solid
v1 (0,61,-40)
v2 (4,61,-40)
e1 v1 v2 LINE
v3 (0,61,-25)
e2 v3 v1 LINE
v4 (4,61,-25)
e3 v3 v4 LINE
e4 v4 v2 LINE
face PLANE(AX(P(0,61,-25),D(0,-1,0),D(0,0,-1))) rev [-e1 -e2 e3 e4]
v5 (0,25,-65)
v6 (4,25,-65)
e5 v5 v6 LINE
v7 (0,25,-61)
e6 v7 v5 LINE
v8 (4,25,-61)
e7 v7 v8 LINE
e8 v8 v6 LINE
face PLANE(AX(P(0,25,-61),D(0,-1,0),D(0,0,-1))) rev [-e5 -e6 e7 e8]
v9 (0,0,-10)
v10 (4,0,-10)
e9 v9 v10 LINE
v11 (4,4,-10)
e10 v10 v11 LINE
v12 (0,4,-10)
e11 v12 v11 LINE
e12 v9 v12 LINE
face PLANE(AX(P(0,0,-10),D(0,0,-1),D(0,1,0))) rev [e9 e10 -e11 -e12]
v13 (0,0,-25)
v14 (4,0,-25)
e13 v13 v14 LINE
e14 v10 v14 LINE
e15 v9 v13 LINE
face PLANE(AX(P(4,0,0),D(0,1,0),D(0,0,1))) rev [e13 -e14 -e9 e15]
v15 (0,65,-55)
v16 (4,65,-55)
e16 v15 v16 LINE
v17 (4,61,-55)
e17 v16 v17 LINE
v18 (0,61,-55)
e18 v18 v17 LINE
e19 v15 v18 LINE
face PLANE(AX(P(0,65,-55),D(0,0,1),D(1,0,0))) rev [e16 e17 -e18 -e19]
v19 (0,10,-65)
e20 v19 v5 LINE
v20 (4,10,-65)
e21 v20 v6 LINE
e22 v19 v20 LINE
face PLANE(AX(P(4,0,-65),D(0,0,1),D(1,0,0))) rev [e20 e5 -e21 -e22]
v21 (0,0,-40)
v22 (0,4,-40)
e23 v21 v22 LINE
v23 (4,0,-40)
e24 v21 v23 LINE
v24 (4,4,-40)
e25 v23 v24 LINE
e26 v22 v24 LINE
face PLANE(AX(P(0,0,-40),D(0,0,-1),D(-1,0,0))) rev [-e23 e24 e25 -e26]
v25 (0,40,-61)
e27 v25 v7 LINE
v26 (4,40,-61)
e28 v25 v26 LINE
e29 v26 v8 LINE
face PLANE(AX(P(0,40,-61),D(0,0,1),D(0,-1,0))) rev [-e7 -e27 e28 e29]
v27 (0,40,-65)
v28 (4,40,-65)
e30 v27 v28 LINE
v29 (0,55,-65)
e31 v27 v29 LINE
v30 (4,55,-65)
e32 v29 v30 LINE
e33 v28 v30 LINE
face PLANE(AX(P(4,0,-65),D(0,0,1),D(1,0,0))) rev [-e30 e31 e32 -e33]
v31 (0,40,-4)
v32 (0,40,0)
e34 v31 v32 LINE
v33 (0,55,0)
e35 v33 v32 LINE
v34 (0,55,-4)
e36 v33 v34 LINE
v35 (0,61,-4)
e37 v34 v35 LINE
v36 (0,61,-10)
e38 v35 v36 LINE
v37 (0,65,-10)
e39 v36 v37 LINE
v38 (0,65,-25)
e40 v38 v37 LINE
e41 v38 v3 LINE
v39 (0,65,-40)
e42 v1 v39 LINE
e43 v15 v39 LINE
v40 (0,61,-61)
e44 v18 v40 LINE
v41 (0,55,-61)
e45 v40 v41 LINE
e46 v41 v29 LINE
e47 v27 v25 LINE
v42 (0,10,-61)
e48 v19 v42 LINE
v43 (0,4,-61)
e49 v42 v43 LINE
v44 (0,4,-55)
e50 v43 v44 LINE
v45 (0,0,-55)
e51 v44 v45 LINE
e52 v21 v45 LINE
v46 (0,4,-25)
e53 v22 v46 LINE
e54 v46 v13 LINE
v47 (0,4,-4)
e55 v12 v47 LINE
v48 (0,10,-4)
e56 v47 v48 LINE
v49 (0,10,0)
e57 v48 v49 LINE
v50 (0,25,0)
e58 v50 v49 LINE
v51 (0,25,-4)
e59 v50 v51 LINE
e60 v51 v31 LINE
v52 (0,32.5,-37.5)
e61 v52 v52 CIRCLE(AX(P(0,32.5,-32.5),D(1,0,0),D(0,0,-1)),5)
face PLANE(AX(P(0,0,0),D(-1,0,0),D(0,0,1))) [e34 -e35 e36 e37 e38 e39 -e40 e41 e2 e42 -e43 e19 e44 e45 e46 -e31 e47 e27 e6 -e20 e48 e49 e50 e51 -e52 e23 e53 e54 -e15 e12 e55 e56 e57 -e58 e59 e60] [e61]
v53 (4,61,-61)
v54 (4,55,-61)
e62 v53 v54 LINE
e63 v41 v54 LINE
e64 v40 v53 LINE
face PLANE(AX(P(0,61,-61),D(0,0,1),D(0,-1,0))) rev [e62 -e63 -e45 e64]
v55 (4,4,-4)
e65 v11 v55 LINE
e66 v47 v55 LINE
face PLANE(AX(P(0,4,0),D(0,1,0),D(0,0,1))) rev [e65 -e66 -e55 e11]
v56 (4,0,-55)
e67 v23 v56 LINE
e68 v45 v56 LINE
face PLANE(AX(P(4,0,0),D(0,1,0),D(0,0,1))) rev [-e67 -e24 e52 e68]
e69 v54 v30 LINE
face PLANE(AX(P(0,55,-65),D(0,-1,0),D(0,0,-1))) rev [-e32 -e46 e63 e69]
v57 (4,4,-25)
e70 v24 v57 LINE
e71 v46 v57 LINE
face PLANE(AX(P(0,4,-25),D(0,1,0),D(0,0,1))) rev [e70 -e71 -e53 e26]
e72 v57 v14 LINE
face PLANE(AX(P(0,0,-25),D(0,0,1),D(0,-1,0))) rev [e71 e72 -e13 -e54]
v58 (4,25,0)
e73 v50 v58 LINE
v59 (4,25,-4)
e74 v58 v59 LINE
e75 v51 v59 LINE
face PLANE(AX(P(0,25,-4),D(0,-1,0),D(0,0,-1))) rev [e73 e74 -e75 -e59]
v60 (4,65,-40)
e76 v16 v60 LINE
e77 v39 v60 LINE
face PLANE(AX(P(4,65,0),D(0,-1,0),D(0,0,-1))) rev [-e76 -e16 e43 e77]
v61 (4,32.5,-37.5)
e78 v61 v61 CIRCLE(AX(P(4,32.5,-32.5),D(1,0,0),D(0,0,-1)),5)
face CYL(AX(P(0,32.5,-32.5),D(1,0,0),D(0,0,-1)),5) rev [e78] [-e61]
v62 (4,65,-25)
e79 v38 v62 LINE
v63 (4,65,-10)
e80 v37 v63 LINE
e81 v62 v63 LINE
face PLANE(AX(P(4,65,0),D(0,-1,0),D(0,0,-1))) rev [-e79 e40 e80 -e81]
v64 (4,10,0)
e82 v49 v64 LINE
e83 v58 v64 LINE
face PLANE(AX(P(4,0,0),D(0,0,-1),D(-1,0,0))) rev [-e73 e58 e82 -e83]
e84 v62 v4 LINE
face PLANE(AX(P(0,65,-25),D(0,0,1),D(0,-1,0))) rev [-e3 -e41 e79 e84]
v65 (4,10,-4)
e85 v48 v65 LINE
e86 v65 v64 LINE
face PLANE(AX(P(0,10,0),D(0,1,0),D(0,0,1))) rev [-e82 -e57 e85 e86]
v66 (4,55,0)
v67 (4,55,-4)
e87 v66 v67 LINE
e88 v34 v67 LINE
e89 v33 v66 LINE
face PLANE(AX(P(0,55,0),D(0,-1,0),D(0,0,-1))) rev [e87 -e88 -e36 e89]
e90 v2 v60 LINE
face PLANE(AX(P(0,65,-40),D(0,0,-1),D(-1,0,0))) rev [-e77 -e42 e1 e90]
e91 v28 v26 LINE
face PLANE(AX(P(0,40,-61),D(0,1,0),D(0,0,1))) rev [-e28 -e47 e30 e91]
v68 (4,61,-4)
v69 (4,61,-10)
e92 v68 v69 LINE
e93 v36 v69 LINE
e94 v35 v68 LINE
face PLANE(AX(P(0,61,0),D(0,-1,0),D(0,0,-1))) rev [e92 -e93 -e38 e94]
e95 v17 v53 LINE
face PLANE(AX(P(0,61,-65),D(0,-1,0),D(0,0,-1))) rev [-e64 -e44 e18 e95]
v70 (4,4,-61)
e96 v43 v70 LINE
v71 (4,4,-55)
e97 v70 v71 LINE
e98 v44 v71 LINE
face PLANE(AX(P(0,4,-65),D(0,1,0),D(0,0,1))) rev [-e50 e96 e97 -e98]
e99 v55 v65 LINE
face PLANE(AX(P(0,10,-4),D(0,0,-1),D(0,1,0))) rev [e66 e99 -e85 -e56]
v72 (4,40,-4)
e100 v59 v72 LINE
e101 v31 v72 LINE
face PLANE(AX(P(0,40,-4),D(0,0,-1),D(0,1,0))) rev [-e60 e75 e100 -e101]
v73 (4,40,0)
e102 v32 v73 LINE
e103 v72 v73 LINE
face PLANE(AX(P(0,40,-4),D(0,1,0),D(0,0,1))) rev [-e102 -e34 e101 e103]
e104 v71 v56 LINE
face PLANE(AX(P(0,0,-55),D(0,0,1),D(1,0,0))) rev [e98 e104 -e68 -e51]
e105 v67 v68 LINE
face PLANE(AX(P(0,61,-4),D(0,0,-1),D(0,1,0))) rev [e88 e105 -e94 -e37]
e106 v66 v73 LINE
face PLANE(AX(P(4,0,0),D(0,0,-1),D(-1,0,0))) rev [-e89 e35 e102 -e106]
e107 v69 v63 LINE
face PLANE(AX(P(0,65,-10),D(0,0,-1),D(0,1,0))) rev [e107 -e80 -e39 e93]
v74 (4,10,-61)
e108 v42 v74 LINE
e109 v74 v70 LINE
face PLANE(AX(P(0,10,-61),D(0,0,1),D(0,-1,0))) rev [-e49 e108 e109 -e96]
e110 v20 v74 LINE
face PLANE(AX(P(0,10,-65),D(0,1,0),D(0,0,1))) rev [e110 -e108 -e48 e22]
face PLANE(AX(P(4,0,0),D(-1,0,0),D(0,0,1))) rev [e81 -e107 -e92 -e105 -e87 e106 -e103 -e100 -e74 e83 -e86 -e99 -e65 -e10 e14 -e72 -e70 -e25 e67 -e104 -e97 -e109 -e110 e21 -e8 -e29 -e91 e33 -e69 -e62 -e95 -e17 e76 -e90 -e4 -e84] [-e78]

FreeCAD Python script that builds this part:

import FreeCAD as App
import Part
import Sketcher
Q = App.Units.Quantity


def add_polygon(sketch, points):
    """Adds a closed chain of lines whose ends are joined by coincident constraints."""
    first, n = sketch.GeometryCount, len(points)
    for a, b in zip(points, points[1:] + points[:1]):
        sketch.addGeometry(Part.LineSegment(App.Vector(*a, 0), App.Vector(*b, 0)), False)
    for i in range(n):
        sketch.addConstraint(Sketcher.Constraint("Coincident", first + i, 2, first + (i + 1) % n, 1))

doc = App.newDocument("Part")
body = doc.addObject("PartDesign::Body", "Body")

# Sketch on YZ plane
sketch1 = body.newObject("Sketcher::SketchObject", "Sketch")
sketch1.AttachmentSupport = (doc.getObject("YZ_Plane"), [""])
sketch1.MapMode = "FlatFace"
add_polygon(sketch1, [(65, 0), (0, 0), (0, -65), (65, -65)])  # lines 0-3
sketch1.addConstraint(Sketcher.Constraint("Horizontal", 0))
sketch1.addConstraint(Sketcher.Constraint("Vertical", 1))
sketch1.addConstraint(Sketcher.Constraint("Horizontal", 2))
sketch1.addConstraint(Sketcher.Constraint("Vertical", 3))
sketch1.addConstraint(Sketcher.Constraint("Coincident", 0, 2, -1, 1))
sketch1.addConstraint(Sketcher.Constraint("Equal", 2, 1))
sketch1.addConstraint(Sketcher.Constraint("DistanceX", 0, 2, 0, 1, Q("65 mm")))
pad1 = body.newObject("PartDesign::Pad", "Pad")
pad1.Profile = sketch1
pad1.Length = 4

# Sketch on YZ plane
sketch2 = body.newObject("Sketcher::SketchObject", "Sketch001")
sketch2.AttachmentSupport = (doc.getObject("YZ_Plane"), [""])
sketch2.MapMode = "FlatFace"
sketch2.AttachmentOffset = App.Placement(App.Vector(0, 0, 4), App.Rotation())
sketch2.addGeometry(Part.Circle(App.Vector(32, -32, 0), App.Vector(0, 0, 1), 5), False)
sketch2.addConstraint(Sketcher.Constraint("Diameter", 0, Q("10 mm")))
sketch2.addConstraint(Sketcher.Constraint("DistanceX", -1, 1, 0, 3, Q("32.5 mm")))
sketch2.addConstraint(Sketcher.Constraint("DistanceY", 0, 3, -1, 1, Q("32.5 mm")))
pocket1 = body.newObject("PartDesign::Pocket", "Pocket")
pocket1.Profile = sketch2
pocket1.Length = 4

# Sketch on YZ plane
sketch3 = body.newObject("Sketcher::SketchObject", "Sketch002")
sketch3.AttachmentSupport = (doc.getObject("YZ_Plane"), [""])
sketch3.MapMode = "FlatFace"
sketch3.AttachmentOffset = App.Placement(App.Vector(0, 0, 4), App.Rotation())
add_polygon(sketch3, [(65, 0), (61, 0), (61, -10), (65, -10)])  # lines 0-3
add_polygon(sketch3, [(65, -25), (61, -25), (61, -40), (65, -40)])  # lines 4-7
add_polygon(sketch3, [(65, -55), (61, -55), (61, -65), (65, -65)])  # lines 8-11
add_polygon(sketch3, [(4, -55), (0, -55), (0, -65), (4, -65)])  # lines 12-15
add_polygon(sketch3, [(4, -25), (0, -25), (0, -40), (4, -40)])  # lines 16-19
add_polygon(sketch3, [(4, 0), (0, 0), (0, -10), (4, -10)])  # lines 20-23
sketch3.addConstraint(Sketcher.Constraint("Horizontal", 0))
sketch3.addConstraint(Sketcher.Constraint("Vertical", 1))
sketch3.addConstraint(Sketcher.Constraint("Horizontal", 2))
sketch3.addConstraint(Sketcher.Constraint("Vertical", 3))
sketch3.addConstraint(Sketcher.Constraint("Horizontal", 4))
sketch3.addConstraint(Sketcher.Constraint("Vertical", 5))
sketch3.addConstraint(Sketcher.Constraint("Horizontal", 6))
sketch3.addConstraint(Sketcher.Constraint("Vertical", 7))
sketch3.addConstraint(Sketcher.Constraint("Horizontal", 8))
sketch3.addConstraint(Sketcher.Constraint("Vertical", 9))
sketch3.addConstraint(Sketcher.Constraint("Horizontal", 10))
sketch3.addConstraint(Sketcher.Constraint("Vertical", 11))
sketch3.addConstraint(Sketcher.Constraint("Horizontal", 12))
sketch3.addConstraint(Sketcher.Constraint("Vertical", 13))
sketch3.addConstraint(Sketcher.Constraint("Horizontal", 14))
sketch3.addConstraint(Sketcher.Constraint("Vertical", 15))
sketch3.addConstraint(Sketcher.Constraint("Horizontal", 16))
sketch3.addConstraint(Sketcher.Constraint("Vertical", 17))
sketch3.addConstraint(Sketcher.Constraint("Horizontal", 18))
sketch3.addConstraint(Sketcher.Constraint("Vertical", 19))
sketch3.addConstraint(Sketcher.Constraint("Horizontal", 20))
sketch3.addConstraint(Sketcher.Constraint("Vertical", 21))
sketch3.addConstraint(Sketcher.Constraint("Horizontal", 22))
sketch3.addConstraint(Sketcher.Constraint("Vertical", 23))
sketch3.addConstraint(Sketcher.Constraint("Coincident", 20, 2, -1, 1))
sketch3.addConstraint(Sketcher.Constraint("PointOnObject", 0, 2, -1))
sketch3.addConstraint(Sketcher.Constraint("PointOnObject", 12, 2, -2))
sketch3.addConstraint(Sketcher.Constraint("PointOnObject", 16, 2, -2))
sketch3.addConstraint(Sketcher.Constraint("Horizontal", 11, 2, 12, 2))
sketch3.addConstraint(Sketcher.Constraint("Horizontal", 10, 2, 13, 2))
sketch3.addConstraint(Sketcher.Constraint("Horizontal", 7, 2, 16, 2))
sketch3.addConstraint(Sketcher.Constraint("Horizontal", 6, 2, 17, 2))
sketch3.addConstraint(Sketcher.Constraint("Horizontal", 2, 2, 21, 2))
sketch3.addConstraint(Sketcher.Constraint("Vertical", 1, 2, 4, 2))
sketch3.addConstraint(Sketcher.Constraint("Vertical", 3, 2, 6, 2))
sketch3.addConstraint(Sketcher.Constraint("Vertical", 5, 2, 8, 2))
sketch3.addConstraint(Sketcher.Constraint("Vertical", 7, 2, 10, 2))
sketch3.addConstraint(Sketcher.Constraint("Vertical", 15, 2, 18, 2))
sketch3.addConstraint(Sketcher.Constraint("Vertical", 19, 2, 22, 2))
sketch3.addConstraint(Sketcher.Constraint("Equal", 10, 12))
sketch3.addConstraint(Sketcher.Constraint("Equal", 3, 9))
sketch3.addConstraint(Sketcher.Constraint("DistanceX", 0, 2, 0, 1, Q("4 mm")))
sketch3.addConstraint(Sketcher.Constraint("DistanceY", 1, 2, 1, 1, Q("10 mm")))
sketch3.addConstraint(Sketcher.Constraint("DistanceY", 5, 2, 5, 1, Q("15 mm")))
sketch3.addConstraint(Sketcher.Constraint("DistanceX", -1, 1, 0, 2, Q("61 mm")))
sketch3.addConstraint(Sketcher.Constraint("DistanceY", 4, 2, -1, 1, Q("25 mm")))
sketch3.addConstraint(Sketcher.Constraint("DistanceY", 8, 2, -1, 1, Q("55 mm")))
pocket2 = body.newObject("PartDesign::Pocket", "Pocket001")
pocket2.Profile = sketch3
pocket2.Length = 4

# Sketch on YZ plane
sketch4 = body.newObject("Sketcher::SketchObject", "Sketch003")
sketch4.AttachmentSupport = (doc.getObject("YZ_Plane"), [""])
sketch4.MapMode = "FlatFace"
sketch4.AttachmentOffset = App.Placement(App.Vector(0, 0, 4), App.Rotation())
add_polygon(sketch4, [(61, 0), (55, 0), (55, -4), (61, -4)])  # lines 0-3
add_polygon(sketch4, [(40, 0), (25, 0), (25, -4), (40, -4)])  # lines 4-7
add_polygon(sketch4, [(10, 0), (4, 0), (4, -4), (10, -4)])  # lines 8-11
add_polygon(sketch4, [(10, -61), (4, -61), (4, -65), (10, -65)])  # lines 12-15
add_polygon(sketch4, [(40, -61), (25, -61), (25, -65), (40, -65)])  # lines 16-19
add_polygon(sketch4, [(61, -61), (55, -61), (55, -65), (61, -65)])  # lines 20-23
sketch4.addConstraint(Sketcher.Constraint("Horizontal", 0))
sketch4.addConstraint(Sketcher.Constraint("Vertical", 1))
sketch4.addConstraint(Sketcher.Constraint("Horizontal", 2))
sketch4.addConstraint(Sketcher.Constraint("Vertical", 3))
sketch4.addConstraint(Sketcher.Constraint("Horizontal", 4))
sketch4.addConstraint(Sketcher.Constraint("Vertical", 5))
sketch4.addConstraint(Sketcher.Constraint("Horizontal", 6))
sketch4.addConstraint(Sketcher.Constraint("Vertical", 7))
sketch4.addConstraint(Sketcher.Constraint("Horizontal", 8))
sketch4.addConstraint(Sketcher.Constraint("Vertical", 9))
sketch4.addConstraint(Sketcher.Constraint("Horizontal", 10))
sketch4.addConstraint(Sketcher.Constraint("Vertical", 11))
sketch4.addConstraint(Sketcher.Constraint("Horizontal", 12))
sketch4.addConstraint(Sketcher.Constraint("Vertical", 13))
sketch4.addConstraint(Sketcher.Constraint("Horizontal", 14))
sketch4.addConstraint(Sketcher.Constraint("Vertical", 15))
sketch4.addConstraint(Sketcher.Constraint("Horizontal", 16))
sketch4.addConstraint(Sketcher.Constraint("Vertical", 17))
sketch4.addConstraint(Sketcher.Constraint("Horizontal", 18))
sketch4.addConstraint(Sketcher.Constraint("Vertical", 19))
sketch4.addConstraint(Sketcher.Constraint("Horizontal", 20))
sketch4.addConstraint(Sketcher.Constraint("Vertical", 21))
sketch4.addConstraint(Sketcher.Constraint("Horizontal", 22))
sketch4.addConstraint(Sketcher.Constraint("Vertical", 23))
sketch4.addConstraint(Sketcher.Constraint("PointOnObject", 0, 2, -1))
sketch4.addConstraint(Sketcher.Constraint("PointOnObject", 4, 2, -1))
sketch4.addConstraint(Sketcher.Constraint("PointOnObject", 8, 2, -1))
sketch4.addConstraint(Sketcher.Constraint("Horizontal", 2, 2, 5, 2))
sketch4.addConstraint(Sketcher.Constraint("Horizontal", 6, 2, 9, 2))
sketch4.addConstraint(Sketcher.Constraint("Horizontal", 15, 2, 16, 2))
sketch4.addConstraint(Sketcher.Constraint("Horizontal", 14, 2, 17, 2))
sketch4.addConstraint(Sketcher.Constraint("Horizontal", 19, 2, 20, 2))
sketch4.addConstraint(Sketcher.Constraint("Horizontal", 18, 2, 21, 2))
sketch4.addConstraint(Sketcher.Constraint("Vertical", 9, 2, 12, 2))
sketch4.addConstraint(Sketcher.Constraint("Vertical", 11, 2, 14, 2))
sketch4.addConstraint(Sketcher.Constraint("Vertical", 5, 2, 16, 2))
sketch4.addConstraint(Sketcher.Constraint("Vertical", 7, 2, 18, 2))
sketch4.addConstraint(Sketcher.Constraint("Vertical", 1, 2, 20, 2))
sketch4.addConstraint(Sketcher.Constraint("Vertical", 3, 2, 22, 2))
sketch4.addConstraint(Sketcher.Constraint("Equal", 2, 8))
sketch4.addConstraint(Sketcher.Constraint("Equal", 11, 13))
sketch4.addConstraint(Sketcher.Constraint("DistanceX", 0, 2, 0, 1, Q("6 mm")))
sketch4.addConstraint(Sketcher.Constraint("DistanceX", 4, 2, 4, 1, Q("15 mm")))
sketch4.addConstraint(Sketcher.Constraint("DistanceY", 1, 2, 1, 1, Q("4 mm")))
sketch4.addConstraint(Sketcher.Constraint("DistanceX", -1, 1, 0, 2, Q("55 mm")))
sketch4.addConstraint(Sketcher.Constraint("DistanceX", -1, 1, 4, 2, Q("25 mm")))
sketch4.addConstraint(Sketcher.Constraint("DistanceX", -1, 1, 8, 2, Q("4 mm")))
sketch4.addConstraint(Sketcher.Constraint("DistanceY", 12, 2, -1, 1, Q("61 mm")))
pocket3 = body.newObject("PartDesign::Pocket", "Pocket002")
pocket3.Profile = sketch4
pocket3.Length = 4

doc.recompute()
